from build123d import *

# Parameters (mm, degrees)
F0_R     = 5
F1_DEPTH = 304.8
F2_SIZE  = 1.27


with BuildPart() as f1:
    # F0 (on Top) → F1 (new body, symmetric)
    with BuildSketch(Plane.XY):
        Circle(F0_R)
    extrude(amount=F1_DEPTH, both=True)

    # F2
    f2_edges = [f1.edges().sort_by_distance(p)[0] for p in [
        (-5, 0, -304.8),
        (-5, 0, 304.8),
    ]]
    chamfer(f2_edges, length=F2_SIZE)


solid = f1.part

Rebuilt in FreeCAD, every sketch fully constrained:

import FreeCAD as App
import Part
import Sketcher

V = App.Vector
Q = App.Units.Quantity


def edges_at(feature, points):
    """Names of the edges that pass closest to the given points."""
    edges = feature.Shape.Edges
    near = lambda p: min(range(len(edges)), key=lambda i: edges[i].distToShape(Part.Vertex(*p))[0])
    return sorted({f"Edge{near(p) + 1}" for p in points})

doc = App.newDocument("Part")
body = doc.addObject("PartDesign::Body", "Body")

# Sketch on XY plane
sketch1 = doc.addObject("Sketcher::SketchObject", "Sketch")
body.addObject(sketch1)
sketch1.AttachmentSupport = (doc.XY_Plane, [""])
sketch1.MapMode = "FlatFace"
sketch1.addGeometry(Part.Circle(V(0, 0, 0), V(0, 0, 1), 5), False)
sketch1.addConstraint([
    Sketcher.Constraint("Coincident", 0, 3, -1, 1),
    Sketcher.Constraint("Diameter", 0, 10.0),
])
pad1 = doc.addObject("PartDesign::Pad", "Pad")
body.addObject(pad1)
pad1.Profile = sketch1
pad1.Length = Q("24 in")
pad1.Midplane = True
doc.recompute()

chamfer = doc.addObject("PartDesign::Chamfer", "Chamfer")
body.addObject(chamfer)
chamfer.Base = (pad1, edges_at(pad1, [(-5, 0, -304.8), (-5, 0, 304.8)]))
chamfer.Size = Q("0.05 in")

doc.recompute()
